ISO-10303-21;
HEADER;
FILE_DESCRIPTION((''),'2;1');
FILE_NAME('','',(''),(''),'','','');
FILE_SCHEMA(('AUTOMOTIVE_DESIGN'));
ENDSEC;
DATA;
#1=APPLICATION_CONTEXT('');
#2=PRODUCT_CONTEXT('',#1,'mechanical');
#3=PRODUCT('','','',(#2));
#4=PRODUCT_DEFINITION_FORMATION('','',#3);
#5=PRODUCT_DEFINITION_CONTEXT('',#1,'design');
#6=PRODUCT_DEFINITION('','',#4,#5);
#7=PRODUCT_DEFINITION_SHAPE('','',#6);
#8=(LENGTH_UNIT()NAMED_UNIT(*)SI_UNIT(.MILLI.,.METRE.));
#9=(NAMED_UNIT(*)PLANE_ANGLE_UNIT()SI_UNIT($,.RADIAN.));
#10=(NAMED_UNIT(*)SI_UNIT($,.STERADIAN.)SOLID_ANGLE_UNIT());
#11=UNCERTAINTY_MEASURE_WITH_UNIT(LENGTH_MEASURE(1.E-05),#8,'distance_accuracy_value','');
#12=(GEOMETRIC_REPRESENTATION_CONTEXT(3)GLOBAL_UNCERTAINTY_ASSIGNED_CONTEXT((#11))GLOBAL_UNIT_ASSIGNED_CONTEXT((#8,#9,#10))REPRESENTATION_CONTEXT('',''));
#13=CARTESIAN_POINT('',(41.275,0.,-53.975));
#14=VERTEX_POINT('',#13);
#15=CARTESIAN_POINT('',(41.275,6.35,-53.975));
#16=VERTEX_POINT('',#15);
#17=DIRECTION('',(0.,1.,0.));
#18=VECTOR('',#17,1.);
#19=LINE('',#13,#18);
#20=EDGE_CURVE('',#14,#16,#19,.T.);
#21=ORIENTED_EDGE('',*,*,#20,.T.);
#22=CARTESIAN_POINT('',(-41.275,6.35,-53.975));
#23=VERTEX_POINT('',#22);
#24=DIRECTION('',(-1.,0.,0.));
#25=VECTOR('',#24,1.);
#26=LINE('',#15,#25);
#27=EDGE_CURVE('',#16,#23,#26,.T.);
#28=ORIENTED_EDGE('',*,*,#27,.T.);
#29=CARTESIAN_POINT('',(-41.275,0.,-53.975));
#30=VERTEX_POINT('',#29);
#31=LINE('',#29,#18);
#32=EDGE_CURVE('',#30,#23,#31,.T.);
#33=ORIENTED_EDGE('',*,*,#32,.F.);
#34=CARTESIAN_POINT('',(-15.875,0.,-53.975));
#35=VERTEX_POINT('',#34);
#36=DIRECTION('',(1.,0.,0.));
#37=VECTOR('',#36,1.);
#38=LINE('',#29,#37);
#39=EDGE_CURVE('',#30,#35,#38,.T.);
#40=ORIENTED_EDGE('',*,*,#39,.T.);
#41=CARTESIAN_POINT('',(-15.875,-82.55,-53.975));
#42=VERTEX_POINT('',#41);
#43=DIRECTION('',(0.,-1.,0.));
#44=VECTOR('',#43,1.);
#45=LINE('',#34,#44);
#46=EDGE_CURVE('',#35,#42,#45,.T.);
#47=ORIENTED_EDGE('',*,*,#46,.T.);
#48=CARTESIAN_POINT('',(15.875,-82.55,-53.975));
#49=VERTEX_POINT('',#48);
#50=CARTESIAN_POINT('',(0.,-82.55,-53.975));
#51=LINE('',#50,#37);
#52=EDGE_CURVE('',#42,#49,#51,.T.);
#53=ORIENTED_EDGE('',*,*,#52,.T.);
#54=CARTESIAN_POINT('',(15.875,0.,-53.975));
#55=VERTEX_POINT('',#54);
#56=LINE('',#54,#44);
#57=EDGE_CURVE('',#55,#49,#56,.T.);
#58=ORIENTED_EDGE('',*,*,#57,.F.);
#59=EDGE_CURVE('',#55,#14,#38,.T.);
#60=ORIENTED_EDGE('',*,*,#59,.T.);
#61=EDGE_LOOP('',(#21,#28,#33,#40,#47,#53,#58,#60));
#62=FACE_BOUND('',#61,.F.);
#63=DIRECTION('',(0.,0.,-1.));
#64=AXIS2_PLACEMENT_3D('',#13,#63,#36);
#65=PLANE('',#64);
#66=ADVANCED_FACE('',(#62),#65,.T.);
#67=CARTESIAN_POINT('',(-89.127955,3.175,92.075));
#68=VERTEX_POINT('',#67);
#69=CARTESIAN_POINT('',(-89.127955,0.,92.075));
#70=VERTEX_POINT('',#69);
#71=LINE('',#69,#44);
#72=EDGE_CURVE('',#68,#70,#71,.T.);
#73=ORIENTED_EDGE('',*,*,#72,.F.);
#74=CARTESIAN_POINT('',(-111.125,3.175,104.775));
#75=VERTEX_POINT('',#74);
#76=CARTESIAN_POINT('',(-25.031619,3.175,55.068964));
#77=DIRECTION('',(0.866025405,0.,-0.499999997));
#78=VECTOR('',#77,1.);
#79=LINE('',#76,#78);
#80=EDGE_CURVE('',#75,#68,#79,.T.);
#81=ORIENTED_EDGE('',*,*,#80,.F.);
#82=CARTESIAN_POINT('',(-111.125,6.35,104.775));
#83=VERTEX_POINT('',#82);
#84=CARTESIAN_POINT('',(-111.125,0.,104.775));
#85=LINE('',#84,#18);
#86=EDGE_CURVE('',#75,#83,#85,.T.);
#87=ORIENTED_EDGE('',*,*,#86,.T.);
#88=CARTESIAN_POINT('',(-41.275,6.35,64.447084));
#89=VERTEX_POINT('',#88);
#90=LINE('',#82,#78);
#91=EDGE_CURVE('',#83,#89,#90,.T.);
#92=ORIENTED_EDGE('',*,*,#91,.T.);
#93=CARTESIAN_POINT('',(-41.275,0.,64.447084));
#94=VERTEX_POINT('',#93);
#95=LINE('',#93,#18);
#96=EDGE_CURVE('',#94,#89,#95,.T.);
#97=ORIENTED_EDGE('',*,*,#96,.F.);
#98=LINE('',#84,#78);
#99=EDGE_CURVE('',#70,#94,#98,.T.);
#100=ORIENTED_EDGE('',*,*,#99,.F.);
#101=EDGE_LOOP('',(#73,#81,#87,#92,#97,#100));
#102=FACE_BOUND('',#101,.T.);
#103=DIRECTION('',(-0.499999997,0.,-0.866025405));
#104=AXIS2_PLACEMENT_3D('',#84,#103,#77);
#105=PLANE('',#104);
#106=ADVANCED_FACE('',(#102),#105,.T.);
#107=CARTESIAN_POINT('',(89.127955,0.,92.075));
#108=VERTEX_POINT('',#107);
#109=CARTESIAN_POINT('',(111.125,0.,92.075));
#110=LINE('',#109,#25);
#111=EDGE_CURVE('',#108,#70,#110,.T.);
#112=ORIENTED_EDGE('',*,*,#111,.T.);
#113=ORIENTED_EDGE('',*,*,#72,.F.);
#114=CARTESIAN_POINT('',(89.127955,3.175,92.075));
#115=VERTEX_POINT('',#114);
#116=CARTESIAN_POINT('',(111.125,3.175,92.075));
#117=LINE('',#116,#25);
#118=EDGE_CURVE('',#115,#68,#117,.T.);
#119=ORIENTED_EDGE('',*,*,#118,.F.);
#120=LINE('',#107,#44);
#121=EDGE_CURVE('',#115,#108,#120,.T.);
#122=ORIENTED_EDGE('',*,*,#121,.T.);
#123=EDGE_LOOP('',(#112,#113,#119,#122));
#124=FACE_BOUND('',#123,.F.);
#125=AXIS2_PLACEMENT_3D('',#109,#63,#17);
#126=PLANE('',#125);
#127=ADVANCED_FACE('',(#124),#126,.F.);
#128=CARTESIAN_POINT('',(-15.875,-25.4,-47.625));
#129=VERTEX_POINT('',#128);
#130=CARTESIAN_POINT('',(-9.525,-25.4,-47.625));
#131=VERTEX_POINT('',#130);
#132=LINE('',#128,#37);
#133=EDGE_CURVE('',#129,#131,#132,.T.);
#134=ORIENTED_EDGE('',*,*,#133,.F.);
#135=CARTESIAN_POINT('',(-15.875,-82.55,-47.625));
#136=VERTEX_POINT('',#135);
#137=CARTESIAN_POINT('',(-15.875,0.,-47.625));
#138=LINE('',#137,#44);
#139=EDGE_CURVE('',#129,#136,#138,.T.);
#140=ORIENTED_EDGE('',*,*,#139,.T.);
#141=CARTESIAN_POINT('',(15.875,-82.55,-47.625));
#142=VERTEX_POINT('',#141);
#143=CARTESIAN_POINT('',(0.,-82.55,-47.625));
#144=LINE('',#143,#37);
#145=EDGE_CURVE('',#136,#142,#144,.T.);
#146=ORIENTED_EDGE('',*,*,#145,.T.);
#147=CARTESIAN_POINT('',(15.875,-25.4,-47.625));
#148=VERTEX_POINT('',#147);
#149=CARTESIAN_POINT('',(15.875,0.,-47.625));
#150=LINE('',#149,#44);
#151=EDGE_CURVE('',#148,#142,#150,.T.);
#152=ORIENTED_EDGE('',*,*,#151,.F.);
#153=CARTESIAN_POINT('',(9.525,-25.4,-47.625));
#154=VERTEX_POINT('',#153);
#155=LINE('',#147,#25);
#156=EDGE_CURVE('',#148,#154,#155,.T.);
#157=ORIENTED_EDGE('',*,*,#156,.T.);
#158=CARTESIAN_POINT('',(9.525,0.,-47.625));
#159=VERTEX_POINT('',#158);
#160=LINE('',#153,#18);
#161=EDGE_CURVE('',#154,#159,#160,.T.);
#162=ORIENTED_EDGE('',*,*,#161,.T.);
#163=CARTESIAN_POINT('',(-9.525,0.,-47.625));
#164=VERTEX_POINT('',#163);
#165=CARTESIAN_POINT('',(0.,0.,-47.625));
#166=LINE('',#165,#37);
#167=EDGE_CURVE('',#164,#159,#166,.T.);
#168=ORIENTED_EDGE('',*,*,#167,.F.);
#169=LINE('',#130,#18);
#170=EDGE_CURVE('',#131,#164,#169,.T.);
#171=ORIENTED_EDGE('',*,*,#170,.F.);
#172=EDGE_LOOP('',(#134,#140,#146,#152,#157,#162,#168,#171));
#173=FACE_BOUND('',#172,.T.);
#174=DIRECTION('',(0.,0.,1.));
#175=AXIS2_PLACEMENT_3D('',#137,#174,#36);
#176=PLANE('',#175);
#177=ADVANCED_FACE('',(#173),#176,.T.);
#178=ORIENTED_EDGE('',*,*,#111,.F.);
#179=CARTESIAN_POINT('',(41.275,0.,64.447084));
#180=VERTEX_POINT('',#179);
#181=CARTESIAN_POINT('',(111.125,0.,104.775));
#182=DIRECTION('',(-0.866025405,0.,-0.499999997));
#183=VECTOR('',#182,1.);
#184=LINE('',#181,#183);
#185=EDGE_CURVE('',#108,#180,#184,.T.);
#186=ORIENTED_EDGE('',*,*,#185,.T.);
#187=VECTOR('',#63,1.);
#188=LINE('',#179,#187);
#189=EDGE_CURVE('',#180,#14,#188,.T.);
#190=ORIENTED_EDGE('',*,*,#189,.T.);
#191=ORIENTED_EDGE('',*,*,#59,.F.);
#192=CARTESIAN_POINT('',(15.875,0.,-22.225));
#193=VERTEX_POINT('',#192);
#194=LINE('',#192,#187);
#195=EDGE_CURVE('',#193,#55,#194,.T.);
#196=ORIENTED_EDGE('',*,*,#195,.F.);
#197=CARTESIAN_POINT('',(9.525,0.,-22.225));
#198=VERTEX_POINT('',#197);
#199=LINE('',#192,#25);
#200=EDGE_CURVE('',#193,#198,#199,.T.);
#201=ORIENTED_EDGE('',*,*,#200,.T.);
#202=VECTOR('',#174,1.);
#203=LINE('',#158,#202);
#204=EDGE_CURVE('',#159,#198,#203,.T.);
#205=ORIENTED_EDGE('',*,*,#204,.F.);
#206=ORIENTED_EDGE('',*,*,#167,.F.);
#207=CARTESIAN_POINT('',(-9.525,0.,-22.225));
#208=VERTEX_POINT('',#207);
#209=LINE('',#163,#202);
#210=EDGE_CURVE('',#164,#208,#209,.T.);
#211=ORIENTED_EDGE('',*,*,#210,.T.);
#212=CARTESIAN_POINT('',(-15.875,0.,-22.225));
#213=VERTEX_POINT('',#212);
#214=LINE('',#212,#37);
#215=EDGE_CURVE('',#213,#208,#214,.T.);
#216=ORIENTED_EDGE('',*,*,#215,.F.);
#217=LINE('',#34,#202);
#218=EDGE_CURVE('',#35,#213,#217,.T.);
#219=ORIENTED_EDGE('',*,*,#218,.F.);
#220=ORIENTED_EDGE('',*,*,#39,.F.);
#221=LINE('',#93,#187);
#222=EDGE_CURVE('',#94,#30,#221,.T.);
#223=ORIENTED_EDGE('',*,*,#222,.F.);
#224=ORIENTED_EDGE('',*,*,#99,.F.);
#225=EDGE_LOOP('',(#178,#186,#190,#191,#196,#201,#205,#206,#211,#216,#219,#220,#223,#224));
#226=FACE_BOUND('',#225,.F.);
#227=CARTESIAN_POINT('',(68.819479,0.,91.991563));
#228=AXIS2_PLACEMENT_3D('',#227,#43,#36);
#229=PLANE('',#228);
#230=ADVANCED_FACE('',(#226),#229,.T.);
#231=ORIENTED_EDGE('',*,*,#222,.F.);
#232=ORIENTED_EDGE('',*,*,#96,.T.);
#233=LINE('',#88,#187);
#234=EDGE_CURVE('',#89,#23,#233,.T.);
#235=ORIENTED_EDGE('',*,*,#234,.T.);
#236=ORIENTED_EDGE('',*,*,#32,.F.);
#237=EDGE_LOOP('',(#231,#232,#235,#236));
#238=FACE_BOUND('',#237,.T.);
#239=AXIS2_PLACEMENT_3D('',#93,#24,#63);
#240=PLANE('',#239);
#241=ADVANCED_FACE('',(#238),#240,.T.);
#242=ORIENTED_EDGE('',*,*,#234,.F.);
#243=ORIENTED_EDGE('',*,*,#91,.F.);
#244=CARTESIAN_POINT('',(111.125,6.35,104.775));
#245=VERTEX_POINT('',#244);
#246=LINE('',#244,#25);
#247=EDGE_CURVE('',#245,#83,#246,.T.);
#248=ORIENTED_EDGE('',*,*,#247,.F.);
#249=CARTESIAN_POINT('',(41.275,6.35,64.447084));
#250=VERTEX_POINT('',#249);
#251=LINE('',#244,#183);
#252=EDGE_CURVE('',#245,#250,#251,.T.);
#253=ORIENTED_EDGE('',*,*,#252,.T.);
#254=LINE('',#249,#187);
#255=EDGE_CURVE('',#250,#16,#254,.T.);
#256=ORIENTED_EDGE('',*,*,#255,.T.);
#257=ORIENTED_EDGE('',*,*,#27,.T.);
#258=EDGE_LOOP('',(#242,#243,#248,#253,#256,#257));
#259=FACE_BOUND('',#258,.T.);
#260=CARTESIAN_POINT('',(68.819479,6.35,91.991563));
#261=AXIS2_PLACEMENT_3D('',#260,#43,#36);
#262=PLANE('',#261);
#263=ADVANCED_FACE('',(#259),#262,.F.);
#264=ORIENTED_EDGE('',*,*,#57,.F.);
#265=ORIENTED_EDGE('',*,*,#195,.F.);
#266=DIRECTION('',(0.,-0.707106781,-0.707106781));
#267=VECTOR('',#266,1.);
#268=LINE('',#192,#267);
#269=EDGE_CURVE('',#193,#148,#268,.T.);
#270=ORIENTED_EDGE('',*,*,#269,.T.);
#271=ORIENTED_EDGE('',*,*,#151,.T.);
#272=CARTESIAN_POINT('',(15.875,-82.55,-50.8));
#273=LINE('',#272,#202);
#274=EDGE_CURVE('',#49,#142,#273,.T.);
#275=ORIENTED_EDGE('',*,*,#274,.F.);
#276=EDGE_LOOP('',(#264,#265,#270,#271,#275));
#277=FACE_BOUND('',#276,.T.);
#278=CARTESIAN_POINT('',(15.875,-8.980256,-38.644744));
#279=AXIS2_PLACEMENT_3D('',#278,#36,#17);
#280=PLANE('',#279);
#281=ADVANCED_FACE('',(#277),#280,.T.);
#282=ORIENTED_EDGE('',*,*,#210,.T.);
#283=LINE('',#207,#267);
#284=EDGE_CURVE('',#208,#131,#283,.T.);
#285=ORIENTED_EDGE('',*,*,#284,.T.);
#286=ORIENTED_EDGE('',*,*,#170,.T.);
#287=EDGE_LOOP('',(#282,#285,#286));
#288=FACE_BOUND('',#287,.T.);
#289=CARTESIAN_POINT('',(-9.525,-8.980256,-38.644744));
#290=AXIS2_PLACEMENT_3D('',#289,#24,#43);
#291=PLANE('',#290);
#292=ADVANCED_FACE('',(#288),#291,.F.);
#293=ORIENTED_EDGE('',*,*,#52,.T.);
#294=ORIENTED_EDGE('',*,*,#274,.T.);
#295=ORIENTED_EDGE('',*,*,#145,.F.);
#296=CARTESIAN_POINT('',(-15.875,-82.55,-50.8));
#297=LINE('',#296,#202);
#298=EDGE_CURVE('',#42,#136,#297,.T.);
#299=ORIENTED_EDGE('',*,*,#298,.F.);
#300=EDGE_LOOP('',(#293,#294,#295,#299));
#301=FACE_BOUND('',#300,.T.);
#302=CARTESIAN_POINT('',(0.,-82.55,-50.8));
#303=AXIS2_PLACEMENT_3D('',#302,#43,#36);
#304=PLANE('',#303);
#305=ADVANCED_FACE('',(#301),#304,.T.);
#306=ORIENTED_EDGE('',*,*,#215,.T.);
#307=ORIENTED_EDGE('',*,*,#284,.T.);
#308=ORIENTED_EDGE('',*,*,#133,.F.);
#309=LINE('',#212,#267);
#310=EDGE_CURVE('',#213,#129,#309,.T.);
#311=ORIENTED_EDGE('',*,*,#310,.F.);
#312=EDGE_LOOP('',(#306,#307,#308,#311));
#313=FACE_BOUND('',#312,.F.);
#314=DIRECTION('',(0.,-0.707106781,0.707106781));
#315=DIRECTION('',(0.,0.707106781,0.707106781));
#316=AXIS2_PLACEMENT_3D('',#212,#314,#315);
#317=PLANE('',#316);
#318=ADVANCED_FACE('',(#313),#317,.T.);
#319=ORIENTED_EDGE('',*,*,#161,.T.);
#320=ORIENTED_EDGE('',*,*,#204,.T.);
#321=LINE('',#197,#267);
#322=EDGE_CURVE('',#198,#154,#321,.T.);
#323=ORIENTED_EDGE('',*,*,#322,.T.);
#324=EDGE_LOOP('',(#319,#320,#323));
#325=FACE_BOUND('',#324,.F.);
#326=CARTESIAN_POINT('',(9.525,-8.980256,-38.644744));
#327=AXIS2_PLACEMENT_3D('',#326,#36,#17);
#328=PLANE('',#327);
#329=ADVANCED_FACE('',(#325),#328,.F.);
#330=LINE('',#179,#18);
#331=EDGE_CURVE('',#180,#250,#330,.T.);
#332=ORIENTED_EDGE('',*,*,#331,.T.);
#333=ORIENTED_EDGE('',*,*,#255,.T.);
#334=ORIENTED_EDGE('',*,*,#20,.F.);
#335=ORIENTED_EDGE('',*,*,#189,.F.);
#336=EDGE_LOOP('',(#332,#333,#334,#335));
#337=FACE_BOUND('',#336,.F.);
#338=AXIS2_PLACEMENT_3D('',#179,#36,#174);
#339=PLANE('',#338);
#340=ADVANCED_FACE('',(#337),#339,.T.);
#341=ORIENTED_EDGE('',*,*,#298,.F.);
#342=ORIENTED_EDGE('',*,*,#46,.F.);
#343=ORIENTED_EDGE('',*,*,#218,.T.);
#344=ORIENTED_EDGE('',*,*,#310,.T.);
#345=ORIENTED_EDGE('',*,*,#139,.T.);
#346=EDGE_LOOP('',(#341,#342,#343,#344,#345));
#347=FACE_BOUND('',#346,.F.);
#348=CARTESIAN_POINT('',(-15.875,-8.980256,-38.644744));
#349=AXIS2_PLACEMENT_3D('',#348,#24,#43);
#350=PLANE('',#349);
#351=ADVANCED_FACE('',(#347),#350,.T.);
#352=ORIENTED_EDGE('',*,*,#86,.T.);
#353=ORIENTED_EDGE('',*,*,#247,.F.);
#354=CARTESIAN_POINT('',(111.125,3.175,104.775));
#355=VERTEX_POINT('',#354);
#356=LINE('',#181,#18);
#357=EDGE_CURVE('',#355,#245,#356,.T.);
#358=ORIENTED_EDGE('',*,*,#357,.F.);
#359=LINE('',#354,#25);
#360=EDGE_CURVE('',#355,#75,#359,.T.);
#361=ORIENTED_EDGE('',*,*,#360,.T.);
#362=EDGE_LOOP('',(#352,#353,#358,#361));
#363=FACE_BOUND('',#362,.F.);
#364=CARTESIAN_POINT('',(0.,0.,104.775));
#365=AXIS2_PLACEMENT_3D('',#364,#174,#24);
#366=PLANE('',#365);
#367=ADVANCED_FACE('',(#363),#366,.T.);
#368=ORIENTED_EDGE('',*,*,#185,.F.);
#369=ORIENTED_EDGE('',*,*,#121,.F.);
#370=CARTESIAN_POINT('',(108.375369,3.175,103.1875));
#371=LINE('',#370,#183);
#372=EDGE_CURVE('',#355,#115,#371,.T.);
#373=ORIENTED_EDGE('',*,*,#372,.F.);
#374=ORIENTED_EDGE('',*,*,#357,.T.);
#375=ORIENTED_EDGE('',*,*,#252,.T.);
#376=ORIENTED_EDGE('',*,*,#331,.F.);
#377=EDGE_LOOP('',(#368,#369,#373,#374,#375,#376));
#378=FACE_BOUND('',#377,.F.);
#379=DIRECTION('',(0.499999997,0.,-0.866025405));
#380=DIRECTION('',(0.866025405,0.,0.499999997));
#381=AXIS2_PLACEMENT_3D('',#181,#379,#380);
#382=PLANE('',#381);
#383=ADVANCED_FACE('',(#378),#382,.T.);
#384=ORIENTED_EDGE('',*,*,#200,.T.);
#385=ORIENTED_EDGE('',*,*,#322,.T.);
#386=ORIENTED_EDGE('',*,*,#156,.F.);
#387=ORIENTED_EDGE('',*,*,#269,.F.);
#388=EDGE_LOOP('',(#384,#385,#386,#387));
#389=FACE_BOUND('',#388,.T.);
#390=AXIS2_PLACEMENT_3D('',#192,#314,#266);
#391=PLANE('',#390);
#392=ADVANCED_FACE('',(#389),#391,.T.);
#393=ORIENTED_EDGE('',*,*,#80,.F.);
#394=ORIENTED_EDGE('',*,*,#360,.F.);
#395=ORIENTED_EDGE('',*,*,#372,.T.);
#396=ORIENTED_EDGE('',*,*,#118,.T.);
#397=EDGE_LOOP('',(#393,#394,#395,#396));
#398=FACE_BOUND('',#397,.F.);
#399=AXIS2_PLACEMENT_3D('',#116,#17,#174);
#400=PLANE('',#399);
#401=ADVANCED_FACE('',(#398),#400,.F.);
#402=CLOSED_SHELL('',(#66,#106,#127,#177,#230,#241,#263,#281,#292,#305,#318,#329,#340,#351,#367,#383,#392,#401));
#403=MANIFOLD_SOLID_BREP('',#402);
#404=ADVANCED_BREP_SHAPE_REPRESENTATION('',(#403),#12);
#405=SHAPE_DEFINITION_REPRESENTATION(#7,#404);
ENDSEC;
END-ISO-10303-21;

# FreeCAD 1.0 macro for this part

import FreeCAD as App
import Part
import Sketcher
from FreeCAD import Vector
Q = App.Units.Quantity

doc = App.newDocument("Part")
body = doc.addObject("PartDesign::Body", "Body")

# Sketch on XZ plane
sketch1 = body.newObject("Sketcher::SketchObject", "Sketch")
sketch1.AttachmentSupport = (doc.getObject("XZ_Plane"), [""])
sketch1.MapMode = "FlatFace"
sketch1.addGeometry(Part.LineSegment(Vector(-111, 105, 0), Vector(-41, 64, 0)), False)
sketch1.addGeometry(Part.LineSegment(Vector(-41, 64, 0), Vector(-41, -54, 0)), False)
sketch1.addGeometry(Part.LineSegment(Vector(-41, -54, 0), Vector(0, -54, 0)), False)
sketch1.addGeometry(Part.LineSegment(Vector(0, -54, 0), Vector(0, 105, 0)), False)
sketch1.addGeometry(Part.LineSegment(Vector(0, 105, 0), Vector(-111, 105, 0)), False)
sketch1.addConstraint(Sketcher.Constraint("Coincident", 0, 2, 1, 1))
sketch1.addConstraint(Sketcher.Constraint("Coincident", 1, 2, 2, 1))
sketch1.addConstraint(Sketcher.Constraint("Coincident", 2, 2, 3, 1))
sketch1.addConstraint(Sketcher.Constraint("Coincident", 3, 2, 4, 1))
sketch1.addConstraint(Sketcher.Constraint("Coincident", 4, 2, 0, 1))
sketch1.addConstraint(Sketcher.Constraint("Vertical", 1))
sketch1.addConstraint(Sketcher.Constraint("Horizontal", 2))
sketch1.addConstraint(Sketcher.Constraint("Vertical", 3))
sketch1.addConstraint(Sketcher.Constraint("Horizontal", 4))
sketch1.addConstraint(Sketcher.Constraint("PointOnObject", 2, 2, -2))
sketch1.addConstraint(Sketcher.Constraint("Angle", 0, Q("-30 deg")))
sketch1.addConstraint(Sketcher.Constraint("DistanceY", 3, 1, 3, 2, Q("6.25 in")))
sketch1.addConstraint(Sketcher.Constraint("DistanceX", 2, 1, 2, 2, Q("1.625 in")))
sketch1.addConstraint(Sketcher.Constraint("DistanceX", 4, 2, 4, 1, Q("4.375 in")))
sketch1.addConstraint(Sketcher.Constraint("DistanceY", 1, 2, -1, 1, Q("2.125 in")))
pad1 = body.newObject("PartDesign::Pad", "Pad")
pad1.Profile = sketch1
pad1.Length = Q("0.25 in")
pad1.Reversed = True
body2 = doc.addObject("PartDesign::Body", "Body001")
doc.recompute()

body2.BaseFeature = body
doc.recompute()

mirroring = doc.addObject("Part::Mirroring", "Mirroring")
mirroring.Source = body
mirroring.Base = Vector(0, 0, 0)
mirroring.Normal = Vector(1, 0, 0)
body3 = doc.addObject("PartDesign::Body", "Body002")
body3.BaseFeature = mirroring
boolean = body2.newObject("PartDesign::Boolean", "Boolean")
boolean.Type = "Fuse"
boolean.addObjects([body3])
doc.recompute()

# Sketch on XZ plane
sketch2 = body2.newObject("Sketcher::SketchObject", "Sketch001")
sketch2.AttachmentSupport = (doc.getObject("XZ_Plane001"), [""])
sketch2.MapMode = "FlatFace"
sketch2.addGeometry(Part.LineSegment(Vector(-16, -48, 0), Vector(-16, -54, 0)), False)
sketch2.addGeometry(Part.LineSegment(Vector(-16, -54, 0), Vector(16, -54, 0)), False)
sketch2.addGeometry(Part.LineSegment(Vector(16, -54, 0), Vector(16, -48, 0)), False)
sketch2.addGeometry(Part.LineSegment(Vector(16, -48, 0), Vector(-16, -48, 0)), False)
sketch2.addConstraint(Sketcher.Constraint("Coincident", 0, 2, 1, 1))
sketch2.addConstraint(Sketcher.Constraint("Coincident", 1, 2, 2, 1))
sketch2.addConstraint(Sketcher.Constraint("Coincident", 2, 2, 3, 1))
sketch2.addConstraint(Sketcher.Constraint("Coincident", 3, 2, 0, 1))
sketch2.addConstraint(Sketcher.Constraint("Vertical", 0))
sketch2.addConstraint(Sketcher.Constraint("Horizontal", 1))
sketch2.addConstraint(Sketcher.Constraint("Vertical", 2))
sketch2.addConstraint(Sketcher.Constraint("Horizontal", 3))
sketch2.addConstraint(Sketcher.Constraint("DistanceX", 1, 1, 1, 2, Q("1.25 in")))
sketch2.addConstraint(Sketcher.Constraint("DistanceY", 0, 2, 0, 1, Q("0.25 in")))
sketch2.addConstraint(Sketcher.Constraint("DistanceX", 0, 2, -1, 1, Q("0.625 in")))
sketch2.addConstraint(Sketcher.Constraint("DistanceY", 0, 2, -1, 1, Q("2.125 in")))
pad2 = body2.newObject("PartDesign::Pad", "Pad001")
pad2.Profile = sketch2
pad2.Length = Q("3.25 in")

# Sketch on YZ plane
sketch3 = body2.newObject("Sketcher::SketchObject", "Sketch002")
sketch3.AttachmentSupport = (doc.getObject("YZ_Plane001"), [""])
sketch3.MapMode = "FlatFace"
sketch3.AttachmentOffset = App.Placement(Vector(0, 0, 0.625 * 25.4), App.Rotation())
sketch3.addGeometry(Part.LineSegment(Vector(0, -22, 0), Vector(-25, -48, 0)), False)
sketch3.addGeometry(Part.LineSegment(Vector(-25, -48, 0), Vector(0, -48, 0)), False)
sketch3.addGeometry(Part.LineSegment(Vector(0, -48, 0), Vector(0, -22, 0)), False)
sketch3.addConstraint(Sketcher.Constraint("Coincident", 0, 2, 1, 1))
sketch3.addConstraint(Sketcher.Constraint("Coincident", 1, 2, 2, 1))
sketch3.addConstraint(Sketcher.Constraint("Coincident", 2, 2, 0, 1))
sketch3.addConstraint(Sketcher.Constraint("Horizontal", 1))
sketch3.addConstraint(Sketcher.Constraint("Vertical", 2))
sketch3.addConstraint(Sketcher.Constraint("PointOnObject", 1, 2, -2))
sketch3.addConstraint(Sketcher.Constraint("Equal", 1, 2))
sketch3.addConstraint(Sketcher.Constraint("DistanceX", 1, 1, 1, 2, Q("1 in")))
sketch3.addConstraint(Sketcher.Constraint("DistanceY", 0, 2, -1, 1, Q("1.875 in")))
pad3 = body2.newObject("PartDesign::Pad", "Pad002")
pad3.Profile = sketch3
pad3.Length = Q("0.25 in")
pad3.Reversed = True
body4 = doc.addObject("PartDesign::Body", "Body003")
doc.recompute()

body4.BaseFeature = body2
doc.recompute()

mirroring2 = doc.addObject("Part::Mirroring", "Mirroring001")
mirroring2.Source = body2
mirroring2.Base = Vector(0, 0, 0)
mirroring2.Normal = Vector(1, 0, 0)
body5 = doc.addObject("PartDesign::Body", "Body004")
body5.BaseFeature = mirroring2
boolean2 = body4.newObject("PartDesign::Boolean", "Boolean001")
boolean2.Type = "Fuse"
boolean2.addObjects([body5])
doc.recompute()

# Sketch on YZ plane
sketch4 = body4.newObject("Sketcher::SketchObject", "Sketch003")
sketch4.AttachmentSupport = (doc.getObject("YZ_Plane003"), [""])
sketch4.MapMode = "FlatFace"
sketch4.AttachmentOffset = App.Placement(Vector(0, 0, 4.375 * 25.4), App.Rotation())
sketch4.addGeometry(Part.LineSegment(Vector(0, 104.8, 0), Vector(0, 92.1, 0)), False)
sketch4.addGeometry(Part.LineSegment(Vector(0, 92.1, 0), Vector(3.2, 92.1, 0)), False)
sketch4.addGeometry(Part.LineSegment(Vector(3.2, 92.1, 0), Vector(3.2, 104.8, 0)), False)
sketch4.addGeometry(Part.LineSegment(Vector(3.2, 104.8, 0), Vector(0, 104.8, 0)), False)
sketch4.addConstraint(Sketcher.Constraint("Coincident", 0, 2, 1, 1))
sketch4.addConstraint(Sketcher.Constraint("Coincident", 1, 2, 2, 1))
sketch4.addConstraint(Sketcher.Constraint("Coincident", 2, 2, 3, 1))
sketch4.addConstraint(Sketcher.Constraint("Coincident", 3, 2, 0, 1))
sketch4.addConstraint(Sketcher.Constraint("Vertical", 0))
sketch4.addConstraint(Sketcher.Constraint("Horizontal", 1))
sketch4.addConstraint(Sketcher.Constraint("Vertical", 2))
sketch4.addConstraint(Sketcher.Constraint("Horizontal", 3))
sketch4.addConstraint(Sketcher.Constraint("PointOnObject", 0, 2, -2))
sketch4.addConstraint(Sketcher.Constraint("DistanceY", 0, 2, 0, 1, Q("0.5 in")))
sketch4.addConstraint(Sketcher.Constraint("DistanceX", 1, 1, 1, 2, Q("0.125 in")))
sketch4.addConstraint(Sketcher.Constraint("DistanceY", -1, 1, 0, 2, Q("3.625 in")))
pocket1 = body4.newObject("PartDesign::Pocket", "Pocket")
pocket1.Profile = sketch4
pocket1.Length = Q("8.75 in")
mirroring.Visibility = False
mirroring2.Visibility = False

doc.recompute()
